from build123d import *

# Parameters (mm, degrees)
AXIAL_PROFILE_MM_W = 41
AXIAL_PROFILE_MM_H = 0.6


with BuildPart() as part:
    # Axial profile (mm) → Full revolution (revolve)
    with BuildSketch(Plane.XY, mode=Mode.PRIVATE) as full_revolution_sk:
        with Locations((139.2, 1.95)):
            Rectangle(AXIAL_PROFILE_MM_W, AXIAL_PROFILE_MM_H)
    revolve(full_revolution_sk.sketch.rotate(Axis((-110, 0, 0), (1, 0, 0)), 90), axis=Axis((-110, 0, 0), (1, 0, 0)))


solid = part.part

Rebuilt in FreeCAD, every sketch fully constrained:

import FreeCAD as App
import Part
import Sketcher
from FreeCAD import Vector
Q = App.Units.Quantity

doc = App.newDocument("Part")
body = doc.addObject("PartDesign::Body", "Body")

sketch1 = body.newObject("Sketcher::SketchObject", "Sketch")
sketch1.AttachmentSupport = (doc.getObject("XY_Plane"), [""])
sketch1.MapMode = "FlatFace"
sketch1.addGeometry([
    Part.LineSegment(Vector(118.7, 2.25, 0), Vector(118.7, 1.65, 0)),
    Part.LineSegment(Vector(118.7, 1.65, 0), Vector(159.7, 1.65, 0)),
    Part.LineSegment(Vector(159.7, 1.65, 0), Vector(159.7, 2.25, 0)),
    Part.LineSegment(Vector(159.7, 2.25, 0), Vector(118.7, 2.25, 0)),
], False)
sketch1.addConstraint([
    Sketcher.Constraint("Coincident", 0, 2, 1, 1),
    Sketcher.Constraint("Coincident", 1, 2, 2, 1),
    Sketcher.Constraint("Coincident", 2, 2, 3, 1),
    Sketcher.Constraint("Coincident", 3, 2, 0, 1),
    Sketcher.Constraint("Vertical", 0),
    Sketcher.Constraint("Horizontal", 1),
    Sketcher.Constraint("Vertical", 2),
    Sketcher.Constraint("Horizontal", 3),
    Sketcher.Constraint("DistanceX", 1, 1, 1, 2, Q("41 mm")),
    Sketcher.Constraint("DistanceY", 0, 2, 0, 1, Q("0.6 mm")),
    Sketcher.Constraint("DistanceX", -1, 1, 0, 2, Q("118.7 mm")),
    Sketcher.Constraint("DistanceY", -1, 1, 0, 2, Q("1.65 mm")),
])
revolution = body.newObject("PartDesign::Revolution", "Revolution")
revolution.Profile = sketch1
revolution.ReferenceAxis = (sketch1, ["H_Axis"])
revolution.Angle = 360

doc.recompute()
